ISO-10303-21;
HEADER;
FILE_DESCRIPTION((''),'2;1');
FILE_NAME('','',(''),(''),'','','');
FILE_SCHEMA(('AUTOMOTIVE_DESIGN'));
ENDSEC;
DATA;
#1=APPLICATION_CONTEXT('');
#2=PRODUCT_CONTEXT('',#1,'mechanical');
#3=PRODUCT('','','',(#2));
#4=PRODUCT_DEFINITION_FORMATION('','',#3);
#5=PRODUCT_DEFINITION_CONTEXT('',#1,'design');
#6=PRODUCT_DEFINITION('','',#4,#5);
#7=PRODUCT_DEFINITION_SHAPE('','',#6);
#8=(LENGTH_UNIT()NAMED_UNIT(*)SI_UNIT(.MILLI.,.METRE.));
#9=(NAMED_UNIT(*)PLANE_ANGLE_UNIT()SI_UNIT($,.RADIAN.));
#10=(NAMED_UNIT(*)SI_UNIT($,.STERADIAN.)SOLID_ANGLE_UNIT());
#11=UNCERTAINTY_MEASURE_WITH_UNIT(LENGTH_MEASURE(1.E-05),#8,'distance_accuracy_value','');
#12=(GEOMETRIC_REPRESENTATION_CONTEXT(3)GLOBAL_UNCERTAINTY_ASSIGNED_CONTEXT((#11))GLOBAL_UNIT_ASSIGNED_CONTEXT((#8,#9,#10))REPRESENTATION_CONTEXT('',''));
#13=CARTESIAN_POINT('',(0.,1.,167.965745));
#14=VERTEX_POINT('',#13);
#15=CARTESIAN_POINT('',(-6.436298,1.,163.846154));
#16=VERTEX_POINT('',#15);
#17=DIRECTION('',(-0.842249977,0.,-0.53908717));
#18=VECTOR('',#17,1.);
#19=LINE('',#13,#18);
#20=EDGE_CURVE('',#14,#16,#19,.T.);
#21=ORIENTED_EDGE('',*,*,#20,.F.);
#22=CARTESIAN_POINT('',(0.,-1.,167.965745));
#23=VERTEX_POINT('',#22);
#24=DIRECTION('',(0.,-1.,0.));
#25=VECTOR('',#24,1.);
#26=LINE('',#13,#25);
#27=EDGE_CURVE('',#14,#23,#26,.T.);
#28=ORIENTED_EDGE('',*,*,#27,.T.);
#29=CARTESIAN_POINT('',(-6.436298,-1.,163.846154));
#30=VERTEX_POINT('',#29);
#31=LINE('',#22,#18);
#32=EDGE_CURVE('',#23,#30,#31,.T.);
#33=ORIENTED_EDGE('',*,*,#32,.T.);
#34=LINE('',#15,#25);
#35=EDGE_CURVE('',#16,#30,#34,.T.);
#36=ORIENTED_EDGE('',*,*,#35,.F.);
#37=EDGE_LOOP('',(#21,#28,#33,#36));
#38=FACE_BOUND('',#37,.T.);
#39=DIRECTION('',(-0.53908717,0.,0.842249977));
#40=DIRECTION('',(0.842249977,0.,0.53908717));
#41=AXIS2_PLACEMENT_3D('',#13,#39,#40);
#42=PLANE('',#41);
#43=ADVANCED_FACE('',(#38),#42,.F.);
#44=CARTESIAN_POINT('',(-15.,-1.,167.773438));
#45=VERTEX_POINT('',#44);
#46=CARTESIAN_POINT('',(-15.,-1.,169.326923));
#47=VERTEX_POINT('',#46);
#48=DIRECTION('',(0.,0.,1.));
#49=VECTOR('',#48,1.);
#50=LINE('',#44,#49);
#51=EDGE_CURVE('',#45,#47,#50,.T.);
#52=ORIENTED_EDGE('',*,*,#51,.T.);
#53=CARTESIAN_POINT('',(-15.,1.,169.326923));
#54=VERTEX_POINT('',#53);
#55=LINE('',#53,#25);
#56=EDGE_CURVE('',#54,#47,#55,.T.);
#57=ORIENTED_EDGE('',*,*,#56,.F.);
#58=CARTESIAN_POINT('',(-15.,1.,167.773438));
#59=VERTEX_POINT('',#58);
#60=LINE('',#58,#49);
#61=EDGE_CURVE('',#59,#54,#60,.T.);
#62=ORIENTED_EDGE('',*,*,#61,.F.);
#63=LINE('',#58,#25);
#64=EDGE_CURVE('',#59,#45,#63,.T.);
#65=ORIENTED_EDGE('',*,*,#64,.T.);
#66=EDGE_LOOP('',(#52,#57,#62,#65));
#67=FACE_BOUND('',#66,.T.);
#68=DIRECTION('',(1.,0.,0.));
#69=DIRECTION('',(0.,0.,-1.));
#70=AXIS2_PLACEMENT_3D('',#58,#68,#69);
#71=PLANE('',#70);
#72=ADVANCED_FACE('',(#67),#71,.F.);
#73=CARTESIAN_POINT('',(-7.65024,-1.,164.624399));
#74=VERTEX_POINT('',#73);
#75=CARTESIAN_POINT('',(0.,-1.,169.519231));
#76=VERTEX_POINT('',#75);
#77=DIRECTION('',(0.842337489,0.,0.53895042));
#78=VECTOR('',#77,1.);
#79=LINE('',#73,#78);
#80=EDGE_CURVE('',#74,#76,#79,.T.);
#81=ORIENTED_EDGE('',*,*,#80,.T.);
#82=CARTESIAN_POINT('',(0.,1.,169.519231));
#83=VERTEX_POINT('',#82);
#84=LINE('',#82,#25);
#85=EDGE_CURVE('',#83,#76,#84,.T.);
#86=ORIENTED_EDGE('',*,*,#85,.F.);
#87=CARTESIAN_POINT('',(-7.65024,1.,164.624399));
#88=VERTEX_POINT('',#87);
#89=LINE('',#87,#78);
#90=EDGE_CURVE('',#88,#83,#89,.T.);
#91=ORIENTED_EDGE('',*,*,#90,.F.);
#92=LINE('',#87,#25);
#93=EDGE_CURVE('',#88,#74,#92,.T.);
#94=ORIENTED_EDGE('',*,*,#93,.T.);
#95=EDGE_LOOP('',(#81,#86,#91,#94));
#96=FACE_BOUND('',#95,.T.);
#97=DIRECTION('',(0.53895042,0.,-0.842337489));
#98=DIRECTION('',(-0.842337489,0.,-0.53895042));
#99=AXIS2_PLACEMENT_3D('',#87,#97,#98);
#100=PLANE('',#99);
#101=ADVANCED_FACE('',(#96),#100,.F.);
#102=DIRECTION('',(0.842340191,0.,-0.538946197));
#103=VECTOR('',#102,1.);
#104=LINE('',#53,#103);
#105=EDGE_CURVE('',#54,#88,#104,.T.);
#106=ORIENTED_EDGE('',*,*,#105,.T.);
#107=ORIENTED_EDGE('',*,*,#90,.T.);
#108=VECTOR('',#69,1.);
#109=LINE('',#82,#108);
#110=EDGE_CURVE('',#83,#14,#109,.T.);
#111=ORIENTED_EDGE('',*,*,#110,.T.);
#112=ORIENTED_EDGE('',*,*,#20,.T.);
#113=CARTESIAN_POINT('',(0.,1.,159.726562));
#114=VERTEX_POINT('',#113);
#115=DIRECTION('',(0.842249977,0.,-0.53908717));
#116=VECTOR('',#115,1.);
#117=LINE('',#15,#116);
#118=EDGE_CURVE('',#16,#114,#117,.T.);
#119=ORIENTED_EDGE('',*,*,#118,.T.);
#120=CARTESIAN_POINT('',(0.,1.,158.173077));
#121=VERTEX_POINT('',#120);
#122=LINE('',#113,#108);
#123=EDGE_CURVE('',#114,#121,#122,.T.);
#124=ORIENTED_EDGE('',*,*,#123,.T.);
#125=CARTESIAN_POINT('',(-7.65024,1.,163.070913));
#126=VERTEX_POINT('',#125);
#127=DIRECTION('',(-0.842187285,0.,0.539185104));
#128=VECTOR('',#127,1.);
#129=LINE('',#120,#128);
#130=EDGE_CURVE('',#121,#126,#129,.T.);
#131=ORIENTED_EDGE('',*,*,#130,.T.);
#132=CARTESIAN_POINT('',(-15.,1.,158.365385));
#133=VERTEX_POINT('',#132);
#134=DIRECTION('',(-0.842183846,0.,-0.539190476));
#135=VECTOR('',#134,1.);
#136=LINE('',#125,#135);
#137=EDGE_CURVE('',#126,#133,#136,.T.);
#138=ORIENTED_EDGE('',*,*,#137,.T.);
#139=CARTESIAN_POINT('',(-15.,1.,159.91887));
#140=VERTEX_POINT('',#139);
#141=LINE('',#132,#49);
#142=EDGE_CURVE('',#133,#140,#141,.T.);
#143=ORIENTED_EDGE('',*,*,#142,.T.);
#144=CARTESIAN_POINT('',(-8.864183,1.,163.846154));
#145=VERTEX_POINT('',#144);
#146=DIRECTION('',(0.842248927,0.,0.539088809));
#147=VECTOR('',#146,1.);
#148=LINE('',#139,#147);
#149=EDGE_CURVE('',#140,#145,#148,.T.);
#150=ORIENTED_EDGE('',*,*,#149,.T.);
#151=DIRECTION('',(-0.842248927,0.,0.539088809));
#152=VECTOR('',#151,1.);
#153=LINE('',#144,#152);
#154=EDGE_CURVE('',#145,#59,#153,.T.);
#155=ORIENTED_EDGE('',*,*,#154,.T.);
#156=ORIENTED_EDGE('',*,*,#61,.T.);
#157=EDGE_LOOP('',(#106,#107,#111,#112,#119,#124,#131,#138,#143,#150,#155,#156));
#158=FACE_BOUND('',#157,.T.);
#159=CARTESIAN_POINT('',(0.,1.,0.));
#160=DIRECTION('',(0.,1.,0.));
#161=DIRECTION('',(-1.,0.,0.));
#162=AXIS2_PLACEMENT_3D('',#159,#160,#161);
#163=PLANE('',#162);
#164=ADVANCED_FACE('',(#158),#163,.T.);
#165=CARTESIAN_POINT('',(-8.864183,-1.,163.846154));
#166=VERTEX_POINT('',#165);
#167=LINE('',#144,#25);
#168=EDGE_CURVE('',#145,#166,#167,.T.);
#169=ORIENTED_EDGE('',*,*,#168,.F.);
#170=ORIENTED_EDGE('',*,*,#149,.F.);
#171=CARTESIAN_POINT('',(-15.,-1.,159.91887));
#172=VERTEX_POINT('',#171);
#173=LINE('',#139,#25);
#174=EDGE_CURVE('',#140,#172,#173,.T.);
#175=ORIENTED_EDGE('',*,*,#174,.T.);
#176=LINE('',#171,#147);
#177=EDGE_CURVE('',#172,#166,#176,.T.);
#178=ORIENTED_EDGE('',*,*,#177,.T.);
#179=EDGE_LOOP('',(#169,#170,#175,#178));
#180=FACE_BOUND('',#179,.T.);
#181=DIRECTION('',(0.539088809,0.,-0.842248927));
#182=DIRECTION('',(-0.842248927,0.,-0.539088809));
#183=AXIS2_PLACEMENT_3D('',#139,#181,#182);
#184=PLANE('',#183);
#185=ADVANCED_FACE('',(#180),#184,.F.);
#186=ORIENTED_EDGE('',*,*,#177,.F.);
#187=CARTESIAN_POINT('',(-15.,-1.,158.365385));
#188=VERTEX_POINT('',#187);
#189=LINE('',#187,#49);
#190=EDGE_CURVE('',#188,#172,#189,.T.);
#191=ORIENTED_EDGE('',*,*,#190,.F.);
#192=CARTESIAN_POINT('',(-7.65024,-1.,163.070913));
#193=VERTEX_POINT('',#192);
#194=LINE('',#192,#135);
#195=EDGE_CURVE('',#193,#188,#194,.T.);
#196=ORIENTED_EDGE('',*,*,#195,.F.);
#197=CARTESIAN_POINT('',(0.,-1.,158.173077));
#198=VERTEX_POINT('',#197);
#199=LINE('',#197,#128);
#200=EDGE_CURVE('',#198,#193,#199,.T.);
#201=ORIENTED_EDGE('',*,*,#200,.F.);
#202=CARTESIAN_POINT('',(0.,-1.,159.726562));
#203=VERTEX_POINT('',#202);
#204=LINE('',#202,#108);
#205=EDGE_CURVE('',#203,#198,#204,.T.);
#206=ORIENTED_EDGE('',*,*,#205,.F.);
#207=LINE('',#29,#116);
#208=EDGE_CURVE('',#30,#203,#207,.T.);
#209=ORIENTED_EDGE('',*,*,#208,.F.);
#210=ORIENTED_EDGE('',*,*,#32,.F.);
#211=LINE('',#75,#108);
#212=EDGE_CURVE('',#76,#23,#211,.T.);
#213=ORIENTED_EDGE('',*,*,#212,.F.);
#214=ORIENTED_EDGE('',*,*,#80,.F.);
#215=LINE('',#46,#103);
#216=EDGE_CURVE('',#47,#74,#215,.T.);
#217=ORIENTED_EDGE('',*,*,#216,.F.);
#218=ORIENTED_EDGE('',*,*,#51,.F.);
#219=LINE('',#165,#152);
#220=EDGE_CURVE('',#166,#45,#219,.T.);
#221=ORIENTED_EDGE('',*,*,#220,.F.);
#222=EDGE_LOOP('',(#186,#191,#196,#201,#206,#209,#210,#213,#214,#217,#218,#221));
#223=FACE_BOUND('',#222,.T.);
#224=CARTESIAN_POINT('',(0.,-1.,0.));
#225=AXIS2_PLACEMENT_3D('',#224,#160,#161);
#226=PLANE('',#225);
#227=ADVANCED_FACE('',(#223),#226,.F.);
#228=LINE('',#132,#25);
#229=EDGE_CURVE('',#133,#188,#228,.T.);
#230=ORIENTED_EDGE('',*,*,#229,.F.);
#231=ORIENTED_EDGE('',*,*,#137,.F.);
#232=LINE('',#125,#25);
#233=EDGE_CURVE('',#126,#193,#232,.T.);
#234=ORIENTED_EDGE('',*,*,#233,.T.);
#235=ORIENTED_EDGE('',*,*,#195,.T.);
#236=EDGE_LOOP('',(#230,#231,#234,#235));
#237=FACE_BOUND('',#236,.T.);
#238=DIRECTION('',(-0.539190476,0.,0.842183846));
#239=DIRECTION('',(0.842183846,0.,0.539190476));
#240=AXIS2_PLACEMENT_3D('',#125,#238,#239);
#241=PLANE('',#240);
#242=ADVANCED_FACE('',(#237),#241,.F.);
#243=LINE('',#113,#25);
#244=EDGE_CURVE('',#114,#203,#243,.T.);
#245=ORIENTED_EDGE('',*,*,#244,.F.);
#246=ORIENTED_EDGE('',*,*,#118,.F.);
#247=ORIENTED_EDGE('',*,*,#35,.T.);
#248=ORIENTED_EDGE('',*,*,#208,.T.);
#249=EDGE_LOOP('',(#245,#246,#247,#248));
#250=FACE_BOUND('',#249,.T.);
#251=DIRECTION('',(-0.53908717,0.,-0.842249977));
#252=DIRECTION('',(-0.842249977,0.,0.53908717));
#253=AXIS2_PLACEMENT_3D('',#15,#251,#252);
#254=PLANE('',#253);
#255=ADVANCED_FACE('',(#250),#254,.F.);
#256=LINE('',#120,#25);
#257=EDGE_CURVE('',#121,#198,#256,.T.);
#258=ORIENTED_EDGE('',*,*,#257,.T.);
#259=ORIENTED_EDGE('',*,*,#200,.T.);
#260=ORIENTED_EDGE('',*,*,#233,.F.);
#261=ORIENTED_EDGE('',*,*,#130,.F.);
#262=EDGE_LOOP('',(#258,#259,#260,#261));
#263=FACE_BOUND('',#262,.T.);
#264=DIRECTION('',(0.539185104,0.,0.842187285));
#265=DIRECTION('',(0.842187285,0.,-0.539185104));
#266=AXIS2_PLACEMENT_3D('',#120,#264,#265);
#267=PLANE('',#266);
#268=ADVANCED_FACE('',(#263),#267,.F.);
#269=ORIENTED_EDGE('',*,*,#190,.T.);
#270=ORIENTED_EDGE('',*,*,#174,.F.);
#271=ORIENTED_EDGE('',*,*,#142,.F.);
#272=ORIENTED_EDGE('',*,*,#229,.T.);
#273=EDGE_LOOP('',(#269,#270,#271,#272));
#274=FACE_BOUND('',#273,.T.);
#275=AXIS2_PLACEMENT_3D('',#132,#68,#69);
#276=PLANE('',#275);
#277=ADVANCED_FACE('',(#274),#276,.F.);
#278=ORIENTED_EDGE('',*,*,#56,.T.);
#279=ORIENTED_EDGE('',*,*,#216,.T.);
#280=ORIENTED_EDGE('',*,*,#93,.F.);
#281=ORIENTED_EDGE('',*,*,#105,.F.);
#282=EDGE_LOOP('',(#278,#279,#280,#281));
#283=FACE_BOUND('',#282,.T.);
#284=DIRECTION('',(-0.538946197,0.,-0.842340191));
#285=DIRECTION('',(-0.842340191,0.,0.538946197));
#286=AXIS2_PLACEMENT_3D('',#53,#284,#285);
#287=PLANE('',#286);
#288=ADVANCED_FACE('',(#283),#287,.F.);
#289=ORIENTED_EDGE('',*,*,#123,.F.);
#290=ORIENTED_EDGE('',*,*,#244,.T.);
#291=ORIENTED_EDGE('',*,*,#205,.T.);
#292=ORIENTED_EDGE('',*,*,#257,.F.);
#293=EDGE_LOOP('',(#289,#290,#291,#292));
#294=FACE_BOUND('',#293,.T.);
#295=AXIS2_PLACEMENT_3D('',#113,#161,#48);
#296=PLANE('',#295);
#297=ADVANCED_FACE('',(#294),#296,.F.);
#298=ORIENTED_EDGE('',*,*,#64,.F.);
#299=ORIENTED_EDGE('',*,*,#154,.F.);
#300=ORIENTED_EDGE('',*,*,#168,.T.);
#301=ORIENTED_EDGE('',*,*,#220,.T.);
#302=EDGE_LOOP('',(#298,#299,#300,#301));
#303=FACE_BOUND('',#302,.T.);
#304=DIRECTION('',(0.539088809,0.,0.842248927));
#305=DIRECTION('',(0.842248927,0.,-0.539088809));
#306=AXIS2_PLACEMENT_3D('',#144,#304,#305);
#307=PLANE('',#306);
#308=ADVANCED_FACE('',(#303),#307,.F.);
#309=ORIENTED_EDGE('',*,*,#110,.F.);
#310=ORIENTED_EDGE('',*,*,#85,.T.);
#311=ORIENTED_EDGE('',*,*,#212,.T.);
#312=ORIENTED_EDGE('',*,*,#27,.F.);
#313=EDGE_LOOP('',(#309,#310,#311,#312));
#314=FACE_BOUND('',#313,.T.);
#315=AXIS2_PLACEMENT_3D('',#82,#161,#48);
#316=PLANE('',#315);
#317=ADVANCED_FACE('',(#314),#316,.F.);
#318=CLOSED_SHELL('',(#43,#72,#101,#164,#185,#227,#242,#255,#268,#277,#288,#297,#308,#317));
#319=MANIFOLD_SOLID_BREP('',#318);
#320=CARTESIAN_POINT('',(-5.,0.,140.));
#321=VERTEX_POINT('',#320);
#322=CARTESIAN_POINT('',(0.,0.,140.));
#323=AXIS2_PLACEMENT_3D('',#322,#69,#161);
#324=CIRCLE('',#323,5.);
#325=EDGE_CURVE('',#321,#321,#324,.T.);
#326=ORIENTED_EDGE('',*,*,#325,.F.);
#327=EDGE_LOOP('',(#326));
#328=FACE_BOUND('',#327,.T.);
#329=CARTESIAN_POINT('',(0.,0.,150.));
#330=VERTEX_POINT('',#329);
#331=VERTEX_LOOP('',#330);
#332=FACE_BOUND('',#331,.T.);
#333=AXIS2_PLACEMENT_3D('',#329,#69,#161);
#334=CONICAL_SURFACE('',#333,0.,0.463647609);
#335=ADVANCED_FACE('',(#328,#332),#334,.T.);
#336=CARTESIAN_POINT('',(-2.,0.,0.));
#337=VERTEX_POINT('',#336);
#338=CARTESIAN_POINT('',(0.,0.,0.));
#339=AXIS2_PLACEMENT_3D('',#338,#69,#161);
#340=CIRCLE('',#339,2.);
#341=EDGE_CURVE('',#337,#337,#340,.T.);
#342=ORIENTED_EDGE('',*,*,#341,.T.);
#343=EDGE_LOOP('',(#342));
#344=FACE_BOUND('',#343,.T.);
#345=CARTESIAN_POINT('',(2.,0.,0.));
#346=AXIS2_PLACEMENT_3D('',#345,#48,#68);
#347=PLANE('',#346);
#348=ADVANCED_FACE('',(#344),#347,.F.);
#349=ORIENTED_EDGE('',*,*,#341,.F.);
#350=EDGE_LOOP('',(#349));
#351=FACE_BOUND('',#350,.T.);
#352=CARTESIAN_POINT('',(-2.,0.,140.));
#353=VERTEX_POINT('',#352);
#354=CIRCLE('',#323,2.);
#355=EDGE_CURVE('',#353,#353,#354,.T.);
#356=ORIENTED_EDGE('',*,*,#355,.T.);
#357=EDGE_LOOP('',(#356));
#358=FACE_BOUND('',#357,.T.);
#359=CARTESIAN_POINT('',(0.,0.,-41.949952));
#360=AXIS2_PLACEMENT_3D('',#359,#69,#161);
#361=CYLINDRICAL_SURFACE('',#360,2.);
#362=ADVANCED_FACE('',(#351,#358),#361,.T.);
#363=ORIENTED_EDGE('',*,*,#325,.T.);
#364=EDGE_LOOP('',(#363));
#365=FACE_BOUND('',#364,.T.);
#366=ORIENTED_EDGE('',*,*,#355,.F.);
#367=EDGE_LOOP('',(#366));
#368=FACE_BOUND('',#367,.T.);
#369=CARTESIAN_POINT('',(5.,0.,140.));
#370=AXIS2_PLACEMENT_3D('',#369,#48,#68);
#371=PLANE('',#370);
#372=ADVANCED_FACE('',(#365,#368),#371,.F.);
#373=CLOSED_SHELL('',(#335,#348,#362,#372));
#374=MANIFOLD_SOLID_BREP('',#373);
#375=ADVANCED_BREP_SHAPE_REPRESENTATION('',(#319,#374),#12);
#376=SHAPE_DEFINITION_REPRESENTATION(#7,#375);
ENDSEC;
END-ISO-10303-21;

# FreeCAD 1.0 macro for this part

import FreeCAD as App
import Part
import Sketcher

V = App.Vector


def add_polygon(sketch, points):
    """Adds a closed chain of lines whose ends are joined by coincident constraints."""
    first, n = sketch.GeometryCount, len(points)
    for a, b in zip(points, points[1:] + points[:1]):
        sketch.addGeometry(Part.LineSegment(App.Vector(*a, 0), App.Vector(*b, 0)), False)
    for i in range(n):
        sketch.addConstraint(Sketcher.Constraint("Coincident", first + i, 2, first + (i + 1) % n, 1))

doc = App.newDocument("Part")
body = doc.addObject("PartDesign::Body", "Body")

sketch1 = body.newObject("Sketcher::SketchObject", "Sketch")
sketch1.AttachmentSupport = (doc.getObject("XZ_Plane"), [""])
sketch1.MapMode = "FlatFace"
add_polygon(sketch1, [(0, 150), (5, 140), (2, 140), (2, 0), (0, 0)])
sketch1.addConstraint([
    Sketcher.Constraint("Horizontal", 1),
    Sketcher.Constraint("Vertical", 2),
    Sketcher.Constraint("Horizontal", 3),
    Sketcher.Constraint("Vertical", 4),
    Sketcher.Constraint("Coincident", 3, 2, -1, 1),
    Sketcher.Constraint("DistanceX", 1, 2, 1, 1, 3.0),
    Sketcher.Constraint("DistanceX", 3, 2, 3, 1, 2.0),
    Sketcher.Constraint("DistanceY", 2, 2, 2, 1, 140.0),
    Sketcher.Constraint("DistanceY", 4, 1, 4, 2, 150.0),
])
revolution = body.newObject("PartDesign::Revolution", "Revolution")
revolution.Profile = sketch1
revolution.ReferenceAxis = (sketch1, ["V_Axis"])
revolution.Angle = 360
body2 = doc.addObject("PartDesign::Body", "Body001")

sketch2 = body2.newObject("Sketcher::SketchObject", "Sketch001")
sketch2.AttachmentSupport = (doc.getObject("XZ_Plane001"), [""])
sketch2.MapMode = "FlatFace"
add_polygon(sketch2, [(-15, 158.365385), (-15, 159.91887), (-8.864183, 163.846154), (-15, 167.773438), (-15, 169.326923), (-7.65024, 164.624399), (0, 169.519231), (0, 167.965745), (-6.436298, 163.846154), (0, 159.726562), (0, 158.173077), (-7.65024, 163.070913)])
sketch2.addConstraint([
    Sketcher.Constraint("Vertical", 0),
    Sketcher.Constraint("Vertical", 3),
    Sketcher.Constraint("Vertical", 6),
    Sketcher.Constraint("Vertical", 9),
    Sketcher.Constraint("PointOnObject", 5, 2, -2),
    Sketcher.Constraint("PointOnObject", 8, 2, -2),
    Sketcher.Constraint("Parallel", 1, 7),
    Sketcher.Constraint("Parallel", 2, 8),
    Sketcher.Constraint("Horizontal", 1, 2, 7, 2),
    Sketcher.Constraint("Vertical", 0, 2, 2, 2),
    Sketcher.Constraint("Vertical", 4, 2, 10, 2),
    Sketcher.Constraint("Equal", 0, 3),
    Sketcher.Constraint("Equal", 3, 6),
    Sketcher.Constraint("Equal", 6, 9),
    Sketcher.Constraint("Equal", 1, 2),
    Sketcher.Constraint("DistanceX", 0, 2, -1, 1, 15.0),
    Sketcher.Constraint("DistanceY", -1, 1, 4, 2, 164.624399),
    Sketcher.Constraint("DistanceX", 7, 2, -1, 1, 6.436298),
    Sketcher.Constraint("Distance", 1, 7.28504),
    Sketcher.Constraint("Distance", 7, 7.641791),
    Sketcher.Constraint("DistanceY", 0, 1, 0, 2, 1.553486),
    Sketcher.Constraint("DistanceY", -1, 1, 0, 2, 159.91887),
    Sketcher.Constraint("DistanceX", 4, 2, -1, 1, 7.65024),
    Sketcher.Constraint("DistanceY", 10, 2, 1, 2, 0.77524),
])
pad1 = body2.newObject("PartDesign::Pad", "Pad")
pad1.Profile = sketch2
pad1.Type = "TwoLengths"
pad1.Length = 1
pad1.Length2 = 1
pad1.Reversed = True

doc.recompute()
